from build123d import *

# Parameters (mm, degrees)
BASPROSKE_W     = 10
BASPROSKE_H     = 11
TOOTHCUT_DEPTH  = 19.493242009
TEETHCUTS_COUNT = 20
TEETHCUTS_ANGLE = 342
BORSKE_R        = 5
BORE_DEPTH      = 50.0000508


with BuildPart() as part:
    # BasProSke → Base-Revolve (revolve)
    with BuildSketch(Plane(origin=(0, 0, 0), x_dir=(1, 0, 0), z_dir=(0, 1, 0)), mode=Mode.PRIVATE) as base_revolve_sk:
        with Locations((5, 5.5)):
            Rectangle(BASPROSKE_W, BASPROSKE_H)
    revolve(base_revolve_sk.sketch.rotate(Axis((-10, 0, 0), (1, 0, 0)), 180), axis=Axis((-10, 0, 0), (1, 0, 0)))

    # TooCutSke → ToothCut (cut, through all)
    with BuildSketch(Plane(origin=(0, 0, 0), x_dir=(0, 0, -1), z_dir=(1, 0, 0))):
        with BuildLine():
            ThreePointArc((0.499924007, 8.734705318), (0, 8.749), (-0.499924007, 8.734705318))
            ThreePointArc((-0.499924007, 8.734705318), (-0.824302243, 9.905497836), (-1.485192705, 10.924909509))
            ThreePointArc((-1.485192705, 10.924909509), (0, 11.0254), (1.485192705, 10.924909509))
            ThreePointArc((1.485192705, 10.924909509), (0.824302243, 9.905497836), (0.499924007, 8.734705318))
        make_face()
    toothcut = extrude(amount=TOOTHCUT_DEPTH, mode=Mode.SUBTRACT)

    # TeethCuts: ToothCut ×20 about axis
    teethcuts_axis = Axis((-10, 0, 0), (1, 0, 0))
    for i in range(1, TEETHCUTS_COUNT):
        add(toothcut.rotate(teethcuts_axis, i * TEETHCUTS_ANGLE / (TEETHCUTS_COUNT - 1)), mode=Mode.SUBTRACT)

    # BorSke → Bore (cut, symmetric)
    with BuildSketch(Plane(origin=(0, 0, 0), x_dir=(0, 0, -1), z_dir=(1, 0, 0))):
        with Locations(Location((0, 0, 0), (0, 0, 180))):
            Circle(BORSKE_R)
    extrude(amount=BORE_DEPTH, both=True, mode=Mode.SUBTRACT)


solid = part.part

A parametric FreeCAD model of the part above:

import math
import FreeCAD as App
import Part
import Sketcher
from FreeCAD import Vector


def add_polygon(sketch, points):
    """Adds a closed chain of lines whose ends are joined by coincident constraints."""
    first, n = sketch.GeometryCount, len(points)
    for a, b in zip(points, points[1:] + points[:1]):
        sketch.addGeometry(Part.LineSegment(App.Vector(*a, 0), App.Vector(*b, 0)), False)
    for i in range(n):
        sketch.addConstraint(Sketcher.Constraint("Coincident", first + i, 2, first + (i + 1) % n, 1))

doc = App.newDocument("Part")
body = doc.addObject("PartDesign::Body", "Body")

sketch1 = body.newObject("Sketcher::SketchObject", "Sketch")
sketch1.AttachmentSupport = (doc.getObject("XZ_Plane"), [""])
sketch1.MapMode = "FlatFace"
add_polygon(sketch1, [(0, -11), (0, 0), (10, 0), (10, -11)])
sketch1.addConstraint([
    Sketcher.Constraint("Vertical", 0),
    Sketcher.Constraint("Horizontal", 1),
    Sketcher.Constraint("Vertical", 2),
    Sketcher.Constraint("Horizontal", 3),
    Sketcher.Constraint("Coincident", 0, 2, -1, 1),
    Sketcher.Constraint("DistanceX", 1, 1, 1, 2, 10.0),
    Sketcher.Constraint("DistanceY", 0, 1, 0, 2, 11.0),
])
revolution = body.newObject("PartDesign::Revolution", "Revolution")
revolution.Profile = sketch1
revolution.ReferenceAxis = (sketch1, ["H_Axis"])
revolution.Angle = 360

sketch2 = body.newObject("Sketcher::SketchObject", "Sketch001")
sketch2.AttachmentSupport = (doc.getObject("YZ_Plane"), [""])
sketch2.MapMode = "FlatFace"
sketch2.addGeometry([
    Part.ArcOfCircle(Part.Circle(Vector(0, 0, 0), Vector(0, 0, 1), 8.7), math.radians(-3.28), math.radians(3.28)),
    Part.ArcOfCircle(Part.Circle(Vector(8.3, -4.5, 0), Vector(0, 0, 1), 4), math.radians(48), math.radians(83)),
    Part.ArcOfCircle(Part.Circle(Vector(0, 0, 0), Vector(0, 0, 1), 11), math.radians(-7.74), math.radians(7.74)),
    Part.ArcOfCircle(Part.Circle(Vector(8.3, 4.5, 0), Vector(0, 0, 1), 4), math.radians(-83), math.radians(-48)),
], False)
sketch2.addConstraint([
    Sketcher.Constraint("Coincident", 0, 1, 1, 2),
    Sketcher.Constraint("Coincident", 1, 1, 2, 1),
    Sketcher.Constraint("Coincident", 2, 2, 3, 2),
    Sketcher.Constraint("Coincident", 3, 1, 0, 2),
    Sketcher.Constraint("Coincident", 0, 3, -1, 1),
    Sketcher.Constraint("Coincident", 2, 3, -1, 1),
    Sketcher.Constraint("Equal", 1, 3),
    Sketcher.Constraint("Symmetric", 1, 3, 3, 3, -1),
    Sketcher.Constraint("Radius", 1, 4.0),
    Sketcher.Constraint("Radius", 0, 8.749),
    Sketcher.Constraint("Radius", 2, 11.0254),
    Sketcher.Constraint("DistanceY", 1, 3, -1, 1, 4.47219),
    Sketcher.Constraint("DistanceX", -1, 1, 1, 1, 10.92491),
])
pocket1 = body.newObject("PartDesign::Pocket", "Pocket")
pocket1.Profile = sketch2
pocket1.Type = "ThroughAll"
pocket1.Reversed = True
doc.recompute()

polarpattern = body.newObject("PartDesign::PolarPattern", "PolarPattern")
polarpattern.Originals = [pocket1]
polarpattern.Axis = (doc.getObject("X_Axis"), [""])
polarpattern.Angle = 360
polarpattern.Occurrences = 20
body.Tip = polarpattern

sketch3 = body.newObject("Sketcher::SketchObject", "Sketch002")
sketch3.AttachmentSupport = (doc.getObject("YZ_Plane"), [""])
sketch3.MapMode = "FlatFace"
sketch3.addGeometry(Part.Circle(Vector(0, 0, 0), Vector(0, 0, 1), 5), False)
sketch3.addConstraint([
    Sketcher.Constraint("Coincident", 0, 3, -1, 1),
    Sketcher.Constraint("Diameter", 0, 10.0),
])
pocket2 = body.newObject("PartDesign::Pocket", "Pocket001")
pocket2.Profile = sketch3
pocket2.Length = 100.000102
pocket2.Midplane = True

doc.recompute()
